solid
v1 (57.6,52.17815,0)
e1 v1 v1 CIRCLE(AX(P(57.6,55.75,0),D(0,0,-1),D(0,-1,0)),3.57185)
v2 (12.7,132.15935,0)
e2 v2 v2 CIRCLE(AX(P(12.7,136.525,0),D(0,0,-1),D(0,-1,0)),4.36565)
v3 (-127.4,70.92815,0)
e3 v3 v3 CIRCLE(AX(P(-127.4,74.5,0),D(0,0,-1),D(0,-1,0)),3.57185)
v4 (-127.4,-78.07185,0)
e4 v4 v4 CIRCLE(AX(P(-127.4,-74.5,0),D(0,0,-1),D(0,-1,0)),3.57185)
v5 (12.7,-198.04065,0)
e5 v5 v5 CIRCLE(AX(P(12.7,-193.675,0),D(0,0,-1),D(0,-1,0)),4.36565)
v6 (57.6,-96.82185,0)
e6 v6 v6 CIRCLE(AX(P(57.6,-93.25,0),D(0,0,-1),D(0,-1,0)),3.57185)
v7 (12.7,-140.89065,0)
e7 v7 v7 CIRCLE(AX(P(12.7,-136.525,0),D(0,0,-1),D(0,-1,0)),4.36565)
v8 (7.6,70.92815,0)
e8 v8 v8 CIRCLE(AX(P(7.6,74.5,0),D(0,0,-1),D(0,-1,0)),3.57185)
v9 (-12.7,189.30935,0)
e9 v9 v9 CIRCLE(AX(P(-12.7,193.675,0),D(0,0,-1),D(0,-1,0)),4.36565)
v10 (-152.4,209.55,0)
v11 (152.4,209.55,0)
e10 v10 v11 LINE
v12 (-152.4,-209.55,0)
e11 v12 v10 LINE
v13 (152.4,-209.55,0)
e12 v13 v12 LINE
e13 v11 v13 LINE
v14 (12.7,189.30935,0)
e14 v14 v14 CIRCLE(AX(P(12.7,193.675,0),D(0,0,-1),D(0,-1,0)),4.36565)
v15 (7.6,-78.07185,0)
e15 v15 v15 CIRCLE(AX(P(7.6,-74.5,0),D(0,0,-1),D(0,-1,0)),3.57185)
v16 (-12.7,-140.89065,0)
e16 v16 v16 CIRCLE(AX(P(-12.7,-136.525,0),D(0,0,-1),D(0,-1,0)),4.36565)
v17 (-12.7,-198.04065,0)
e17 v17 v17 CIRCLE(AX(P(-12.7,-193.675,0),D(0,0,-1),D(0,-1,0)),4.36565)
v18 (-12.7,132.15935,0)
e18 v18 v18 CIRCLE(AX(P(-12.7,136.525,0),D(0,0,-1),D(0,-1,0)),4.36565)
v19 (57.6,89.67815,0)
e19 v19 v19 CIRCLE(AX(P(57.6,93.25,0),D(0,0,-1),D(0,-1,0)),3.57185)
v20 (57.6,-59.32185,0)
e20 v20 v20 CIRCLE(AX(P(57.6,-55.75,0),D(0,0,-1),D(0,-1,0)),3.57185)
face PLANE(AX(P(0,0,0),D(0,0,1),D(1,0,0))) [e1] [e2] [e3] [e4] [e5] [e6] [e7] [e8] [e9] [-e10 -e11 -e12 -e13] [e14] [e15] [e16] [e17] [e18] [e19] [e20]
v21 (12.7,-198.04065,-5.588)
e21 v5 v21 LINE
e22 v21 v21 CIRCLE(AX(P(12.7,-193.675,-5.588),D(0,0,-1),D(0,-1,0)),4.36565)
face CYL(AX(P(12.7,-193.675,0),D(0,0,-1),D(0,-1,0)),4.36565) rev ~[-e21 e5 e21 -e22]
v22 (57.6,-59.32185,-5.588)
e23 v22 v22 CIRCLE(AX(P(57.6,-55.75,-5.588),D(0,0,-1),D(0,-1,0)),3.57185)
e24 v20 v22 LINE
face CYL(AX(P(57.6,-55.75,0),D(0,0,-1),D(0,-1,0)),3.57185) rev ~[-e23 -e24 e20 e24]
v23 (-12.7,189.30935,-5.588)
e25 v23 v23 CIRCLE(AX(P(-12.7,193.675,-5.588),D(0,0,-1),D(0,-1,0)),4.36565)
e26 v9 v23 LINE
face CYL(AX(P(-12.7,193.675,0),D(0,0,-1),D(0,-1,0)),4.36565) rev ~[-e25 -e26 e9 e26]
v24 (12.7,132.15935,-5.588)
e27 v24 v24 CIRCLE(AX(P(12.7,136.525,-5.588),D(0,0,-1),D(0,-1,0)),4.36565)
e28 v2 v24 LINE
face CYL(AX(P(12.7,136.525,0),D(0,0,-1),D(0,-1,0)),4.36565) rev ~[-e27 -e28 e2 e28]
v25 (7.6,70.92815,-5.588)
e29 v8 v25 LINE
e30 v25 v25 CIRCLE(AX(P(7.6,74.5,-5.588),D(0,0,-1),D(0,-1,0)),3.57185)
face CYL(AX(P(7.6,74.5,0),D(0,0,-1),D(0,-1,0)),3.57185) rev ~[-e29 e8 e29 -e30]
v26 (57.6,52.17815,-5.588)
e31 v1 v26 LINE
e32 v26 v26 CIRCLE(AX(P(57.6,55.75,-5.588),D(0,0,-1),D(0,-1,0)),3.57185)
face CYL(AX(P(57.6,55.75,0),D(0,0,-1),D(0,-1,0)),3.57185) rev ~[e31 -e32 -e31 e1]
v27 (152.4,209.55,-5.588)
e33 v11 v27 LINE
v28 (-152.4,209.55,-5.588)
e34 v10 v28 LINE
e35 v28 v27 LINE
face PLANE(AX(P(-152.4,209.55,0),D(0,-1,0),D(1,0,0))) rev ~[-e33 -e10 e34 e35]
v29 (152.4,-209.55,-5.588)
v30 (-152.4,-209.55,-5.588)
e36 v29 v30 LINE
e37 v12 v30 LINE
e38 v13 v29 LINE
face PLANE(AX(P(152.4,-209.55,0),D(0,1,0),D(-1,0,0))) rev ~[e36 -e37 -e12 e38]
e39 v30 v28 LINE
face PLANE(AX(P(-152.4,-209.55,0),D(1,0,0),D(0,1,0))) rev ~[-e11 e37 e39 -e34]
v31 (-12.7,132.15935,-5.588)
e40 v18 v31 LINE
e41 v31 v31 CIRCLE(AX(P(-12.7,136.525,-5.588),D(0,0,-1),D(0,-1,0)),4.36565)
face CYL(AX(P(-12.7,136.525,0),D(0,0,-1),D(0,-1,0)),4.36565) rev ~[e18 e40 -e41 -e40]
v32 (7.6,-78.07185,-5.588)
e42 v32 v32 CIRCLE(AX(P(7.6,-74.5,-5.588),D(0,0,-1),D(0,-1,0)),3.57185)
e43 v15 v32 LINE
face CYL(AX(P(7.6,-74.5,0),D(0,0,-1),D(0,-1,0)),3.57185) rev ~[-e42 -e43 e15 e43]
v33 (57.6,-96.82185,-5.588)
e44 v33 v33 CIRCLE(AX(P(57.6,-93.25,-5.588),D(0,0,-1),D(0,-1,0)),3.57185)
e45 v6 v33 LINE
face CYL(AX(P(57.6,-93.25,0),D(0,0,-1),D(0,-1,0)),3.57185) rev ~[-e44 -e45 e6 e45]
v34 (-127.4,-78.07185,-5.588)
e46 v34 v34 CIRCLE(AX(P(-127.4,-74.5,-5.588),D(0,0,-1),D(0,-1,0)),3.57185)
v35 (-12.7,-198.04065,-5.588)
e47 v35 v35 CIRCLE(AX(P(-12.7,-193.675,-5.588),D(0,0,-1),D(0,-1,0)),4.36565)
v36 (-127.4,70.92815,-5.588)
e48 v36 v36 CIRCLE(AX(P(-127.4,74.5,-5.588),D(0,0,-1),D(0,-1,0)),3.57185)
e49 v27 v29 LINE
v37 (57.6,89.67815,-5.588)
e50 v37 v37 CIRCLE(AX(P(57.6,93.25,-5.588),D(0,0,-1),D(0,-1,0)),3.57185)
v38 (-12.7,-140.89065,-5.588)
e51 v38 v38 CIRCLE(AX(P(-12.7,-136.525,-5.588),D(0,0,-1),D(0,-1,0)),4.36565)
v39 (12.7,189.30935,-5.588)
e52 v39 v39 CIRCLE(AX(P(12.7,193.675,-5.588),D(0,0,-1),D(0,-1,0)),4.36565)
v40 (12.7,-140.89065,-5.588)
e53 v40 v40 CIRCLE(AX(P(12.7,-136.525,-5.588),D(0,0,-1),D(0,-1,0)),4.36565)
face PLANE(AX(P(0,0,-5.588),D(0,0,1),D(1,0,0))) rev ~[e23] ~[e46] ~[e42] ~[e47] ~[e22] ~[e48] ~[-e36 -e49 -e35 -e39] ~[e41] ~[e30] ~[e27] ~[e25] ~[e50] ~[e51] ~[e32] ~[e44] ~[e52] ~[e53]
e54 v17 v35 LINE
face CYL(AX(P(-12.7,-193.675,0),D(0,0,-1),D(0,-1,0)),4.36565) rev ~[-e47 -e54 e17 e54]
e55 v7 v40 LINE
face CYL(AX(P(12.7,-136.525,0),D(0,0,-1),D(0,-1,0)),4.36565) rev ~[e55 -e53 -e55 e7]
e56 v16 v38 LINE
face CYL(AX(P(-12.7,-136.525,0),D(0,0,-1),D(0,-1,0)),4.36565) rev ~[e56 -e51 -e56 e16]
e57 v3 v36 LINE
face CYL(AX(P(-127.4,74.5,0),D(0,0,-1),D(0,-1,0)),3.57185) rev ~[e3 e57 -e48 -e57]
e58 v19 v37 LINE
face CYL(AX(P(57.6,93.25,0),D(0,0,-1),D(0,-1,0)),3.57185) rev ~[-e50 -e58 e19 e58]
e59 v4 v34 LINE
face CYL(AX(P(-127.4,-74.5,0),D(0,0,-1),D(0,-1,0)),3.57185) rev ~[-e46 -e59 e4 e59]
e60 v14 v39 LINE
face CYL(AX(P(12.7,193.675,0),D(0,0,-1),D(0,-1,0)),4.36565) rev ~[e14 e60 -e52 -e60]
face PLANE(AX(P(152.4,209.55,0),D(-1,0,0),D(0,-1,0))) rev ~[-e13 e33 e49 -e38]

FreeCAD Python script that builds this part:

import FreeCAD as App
import Part
import Sketcher

V = App.Vector
Q = App.Units.Quantity

doc = App.newDocument("Part")
body = doc.addObject("PartDesign::Body", "Body")

sketch1 = body.newObject("Sketcher::SketchObject", "Sketch")
sketch1.AttachmentSupport = (doc.getObject("XY_Plane"), [""])
sketch1.MapMode = "FlatFace"
sketch1.addGeometry([
    Part.LineSegment(V(-152, -210, 0), V(152, -210, 0)),
    Part.LineSegment(V(152, -210, 0), V(152, 210, 0)),
    Part.LineSegment(V(152, 210, 0), V(-152, 210, 0)),
    Part.LineSegment(V(-152, 210, 0), V(-152, -210, 0)),
], False)
sketch1.addConstraint([
    Sketcher.Constraint("Coincident", 0, 2, 1, 1),
    Sketcher.Constraint("Coincident", 1, 2, 2, 1),
    Sketcher.Constraint("Coincident", 2, 2, 3, 1),
    Sketcher.Constraint("Coincident", 3, 2, 0, 1),
    Sketcher.Constraint("Horizontal", 0),
    Sketcher.Constraint("Vertical", 1),
    Sketcher.Constraint("Horizontal", 2),
    Sketcher.Constraint("Vertical", 3),
    Sketcher.Constraint("Symmetric", 0, 2, 2, 2, -1, 1),
    Sketcher.Constraint("DistanceX", 0, 1, 0, 2, Q("12 in")),
    Sketcher.Constraint("DistanceY", 1, 1, 1, 2, Q("16.5 in")),
])
pad1 = body.newObject("PartDesign::Pad", "Pad")
pad1.Profile = sketch1
pad1.Length = Q("0.22 in")
pad1.Reversed = True

sketch2 = body.newObject("Sketcher::SketchObject", "Sketch001")
sketch2.AttachmentSupport = (doc.getObject("XY_Plane"), [""])
sketch2.MapMode = "FlatFace"
sketch2.addGeometry([
    Part.Circle(V(57.6, 55.8, 0), V(0, 0, 1), 3.6),
    Part.Circle(V(57.6, -55.8, 0), V(0, 0, 1), 3.6),
    Part.Circle(V(57.6, -93.2, 0), V(0, 0, 1), 3.6),
    Part.Circle(V(57.6, 93.2, 0), V(0, 0, 1), 3.6),
], False)
sketch2.addConstraint([
    Sketcher.Constraint("Equal", 0, 1),
    Sketcher.Constraint("Equal", 1, 2),
    Sketcher.Constraint("Equal", 2, 3),
    Sketcher.Constraint("Symmetric", 0, 3, 1, 3, -1),
    Sketcher.Constraint("Symmetric", 2, 3, 3, 3, -1),
    Sketcher.Constraint("Vertical", 1, 3, 2, 3),
    Sketcher.Constraint("Diameter", 0, Q("0.281248 in")),
    Sketcher.Constraint("DistanceX", -1, 1, 0, 3, 57.6),
    Sketcher.Constraint("DistanceY", -1, 1, 0, 3, 55.75),
    Sketcher.Constraint("DistanceY", 2, 3, -1, 1, 93.25),
])
doc.recompute()
hole = body.newObject("PartDesign::Hole", "Hole")
hole.Profile = sketch2
hole.ThreadType = "None"
hole.Diameter = Q("0.281248 in")
hole.DepthType = "ThroughAll"

sketch3 = body.newObject("Sketcher::SketchObject", "Sketch002")
sketch3.AttachmentSupport = (doc.getObject("XY_Plane"), [""])
sketch3.MapMode = "FlatFace"
sketch3.addGeometry([
    Part.Circle(V(-127.4, 74.5, 0), V(0, 0, 1), 3.6),
    Part.Circle(V(7.6, 74.5, 0), V(0, 0, 1), 3.6),
    Part.Circle(V(7.6, -74.5, 0), V(0, 0, 1), 3.6),
    Part.Circle(V(-127.4, -74.5, 0), V(0, 0, 1), 3.6),
], False)
sketch3.addConstraint([
    Sketcher.Constraint("Equal", 0, 1),
    Sketcher.Constraint("Equal", 1, 2),
    Sketcher.Constraint("Equal", 2, 3),
    Sketcher.Constraint("Symmetric", 1, 3, 2, 3, -1),
    Sketcher.Constraint("Symmetric", 0, 3, 3, 3, -1),
    Sketcher.Constraint("Horizontal", 0, 3, 1, 3),
    Sketcher.Constraint("Diameter", 0, Q("0.281248 in")),
    Sketcher.Constraint("DistanceX", 0, 3, -1, 1, 127.4),
    Sketcher.Constraint("DistanceY", -1, 1, 0, 3, 74.5),
    Sketcher.Constraint("DistanceX", -1, 1, 1, 3, 7.6),
])
doc.recompute()
hole2 = body.newObject("PartDesign::Hole", "Hole001")
hole2.Profile = sketch3
hole2.ThreadType = "None"
hole2.Diameter = Q("0.281248 in")
hole2.DepthType = "ThroughAll"

sketch4 = body.newObject("Sketcher::SketchObject", "Sketch003")
sketch4.AttachmentSupport = (doc.getObject("XY_Plane"), [""])
sketch4.MapMode = "FlatFace"
sketch4.addGeometry([
    Part.Circle(V(12.7, 193.7, 0), V(0, 0, 1), 4.4),
    Part.Circle(V(12.7, 136.5, 0), V(0, 0, 1), 4.4),
    Part.Circle(V(-12.7, 136.5, 0), V(0, 0, 1), 4.4),
    Part.Circle(V(-12.7, 193.7, 0), V(0, 0, 1), 4.4),
    Part.Circle(V(12.7, -136.5, 0), V(0, 0, 1), 4.4),
    Part.Circle(V(12.7, -193.7, 0), V(0, 0, 1), 4.4),
    Part.Circle(V(-12.7, -193.7, 0), V(0, 0, 1), 4.4),
    Part.Circle(V(-12.7, -136.5, 0), V(0, 0, 1), 4.4),
], False)
sketch4.addConstraint([
    Sketcher.Constraint("Equal", 0, 1),
    Sketcher.Constraint("Equal", 1, 2),
    Sketcher.Constraint("Equal", 2, 3),
    Sketcher.Constraint("Equal", 3, 4),
    Sketcher.Constraint("Equal", 4, 5),
    Sketcher.Constraint("Equal", 5, 6),
    Sketcher.Constraint("Equal", 6, 7),
    Sketcher.Constraint("Symmetric", 2, 3, 4, 3, -1, 1),
    Sketcher.Constraint("Symmetric", 3, 3, 5, 3, -1, 1),
    Sketcher.Constraint("Symmetric", 0, 3, 6, 3, -1, 1),
    Sketcher.Constraint("Symmetric", 1, 3, 7, 3, -1, 1),
    Sketcher.Constraint("Symmetric", 1, 3, 2, 3, -2),
    Sketcher.Constraint("Symmetric", 0, 3, 3, 3, -2),
    Sketcher.Constraint("Vertical", 0, 3, 1, 3),
    Sketcher.Constraint("Diameter", 0, Q("0.343752 in")),
    Sketcher.Constraint("DistanceX", 2, 3, 1, 3, Q("1 in")),
    Sketcher.Constraint("DistanceY", 4, 3, 0, 3, Q("13 in")),
    Sketcher.Constraint("DistanceY", 1, 3, 0, 3, Q("2.25 in")),
])
doc.recompute()
hole3 = body.newObject("PartDesign::Hole", "Hole002")
hole3.Profile = sketch4
hole3.ThreadType = "None"
hole3.Diameter = Q("0.343752 in")
hole3.DepthType = "ThroughAll"

doc.recompute()
